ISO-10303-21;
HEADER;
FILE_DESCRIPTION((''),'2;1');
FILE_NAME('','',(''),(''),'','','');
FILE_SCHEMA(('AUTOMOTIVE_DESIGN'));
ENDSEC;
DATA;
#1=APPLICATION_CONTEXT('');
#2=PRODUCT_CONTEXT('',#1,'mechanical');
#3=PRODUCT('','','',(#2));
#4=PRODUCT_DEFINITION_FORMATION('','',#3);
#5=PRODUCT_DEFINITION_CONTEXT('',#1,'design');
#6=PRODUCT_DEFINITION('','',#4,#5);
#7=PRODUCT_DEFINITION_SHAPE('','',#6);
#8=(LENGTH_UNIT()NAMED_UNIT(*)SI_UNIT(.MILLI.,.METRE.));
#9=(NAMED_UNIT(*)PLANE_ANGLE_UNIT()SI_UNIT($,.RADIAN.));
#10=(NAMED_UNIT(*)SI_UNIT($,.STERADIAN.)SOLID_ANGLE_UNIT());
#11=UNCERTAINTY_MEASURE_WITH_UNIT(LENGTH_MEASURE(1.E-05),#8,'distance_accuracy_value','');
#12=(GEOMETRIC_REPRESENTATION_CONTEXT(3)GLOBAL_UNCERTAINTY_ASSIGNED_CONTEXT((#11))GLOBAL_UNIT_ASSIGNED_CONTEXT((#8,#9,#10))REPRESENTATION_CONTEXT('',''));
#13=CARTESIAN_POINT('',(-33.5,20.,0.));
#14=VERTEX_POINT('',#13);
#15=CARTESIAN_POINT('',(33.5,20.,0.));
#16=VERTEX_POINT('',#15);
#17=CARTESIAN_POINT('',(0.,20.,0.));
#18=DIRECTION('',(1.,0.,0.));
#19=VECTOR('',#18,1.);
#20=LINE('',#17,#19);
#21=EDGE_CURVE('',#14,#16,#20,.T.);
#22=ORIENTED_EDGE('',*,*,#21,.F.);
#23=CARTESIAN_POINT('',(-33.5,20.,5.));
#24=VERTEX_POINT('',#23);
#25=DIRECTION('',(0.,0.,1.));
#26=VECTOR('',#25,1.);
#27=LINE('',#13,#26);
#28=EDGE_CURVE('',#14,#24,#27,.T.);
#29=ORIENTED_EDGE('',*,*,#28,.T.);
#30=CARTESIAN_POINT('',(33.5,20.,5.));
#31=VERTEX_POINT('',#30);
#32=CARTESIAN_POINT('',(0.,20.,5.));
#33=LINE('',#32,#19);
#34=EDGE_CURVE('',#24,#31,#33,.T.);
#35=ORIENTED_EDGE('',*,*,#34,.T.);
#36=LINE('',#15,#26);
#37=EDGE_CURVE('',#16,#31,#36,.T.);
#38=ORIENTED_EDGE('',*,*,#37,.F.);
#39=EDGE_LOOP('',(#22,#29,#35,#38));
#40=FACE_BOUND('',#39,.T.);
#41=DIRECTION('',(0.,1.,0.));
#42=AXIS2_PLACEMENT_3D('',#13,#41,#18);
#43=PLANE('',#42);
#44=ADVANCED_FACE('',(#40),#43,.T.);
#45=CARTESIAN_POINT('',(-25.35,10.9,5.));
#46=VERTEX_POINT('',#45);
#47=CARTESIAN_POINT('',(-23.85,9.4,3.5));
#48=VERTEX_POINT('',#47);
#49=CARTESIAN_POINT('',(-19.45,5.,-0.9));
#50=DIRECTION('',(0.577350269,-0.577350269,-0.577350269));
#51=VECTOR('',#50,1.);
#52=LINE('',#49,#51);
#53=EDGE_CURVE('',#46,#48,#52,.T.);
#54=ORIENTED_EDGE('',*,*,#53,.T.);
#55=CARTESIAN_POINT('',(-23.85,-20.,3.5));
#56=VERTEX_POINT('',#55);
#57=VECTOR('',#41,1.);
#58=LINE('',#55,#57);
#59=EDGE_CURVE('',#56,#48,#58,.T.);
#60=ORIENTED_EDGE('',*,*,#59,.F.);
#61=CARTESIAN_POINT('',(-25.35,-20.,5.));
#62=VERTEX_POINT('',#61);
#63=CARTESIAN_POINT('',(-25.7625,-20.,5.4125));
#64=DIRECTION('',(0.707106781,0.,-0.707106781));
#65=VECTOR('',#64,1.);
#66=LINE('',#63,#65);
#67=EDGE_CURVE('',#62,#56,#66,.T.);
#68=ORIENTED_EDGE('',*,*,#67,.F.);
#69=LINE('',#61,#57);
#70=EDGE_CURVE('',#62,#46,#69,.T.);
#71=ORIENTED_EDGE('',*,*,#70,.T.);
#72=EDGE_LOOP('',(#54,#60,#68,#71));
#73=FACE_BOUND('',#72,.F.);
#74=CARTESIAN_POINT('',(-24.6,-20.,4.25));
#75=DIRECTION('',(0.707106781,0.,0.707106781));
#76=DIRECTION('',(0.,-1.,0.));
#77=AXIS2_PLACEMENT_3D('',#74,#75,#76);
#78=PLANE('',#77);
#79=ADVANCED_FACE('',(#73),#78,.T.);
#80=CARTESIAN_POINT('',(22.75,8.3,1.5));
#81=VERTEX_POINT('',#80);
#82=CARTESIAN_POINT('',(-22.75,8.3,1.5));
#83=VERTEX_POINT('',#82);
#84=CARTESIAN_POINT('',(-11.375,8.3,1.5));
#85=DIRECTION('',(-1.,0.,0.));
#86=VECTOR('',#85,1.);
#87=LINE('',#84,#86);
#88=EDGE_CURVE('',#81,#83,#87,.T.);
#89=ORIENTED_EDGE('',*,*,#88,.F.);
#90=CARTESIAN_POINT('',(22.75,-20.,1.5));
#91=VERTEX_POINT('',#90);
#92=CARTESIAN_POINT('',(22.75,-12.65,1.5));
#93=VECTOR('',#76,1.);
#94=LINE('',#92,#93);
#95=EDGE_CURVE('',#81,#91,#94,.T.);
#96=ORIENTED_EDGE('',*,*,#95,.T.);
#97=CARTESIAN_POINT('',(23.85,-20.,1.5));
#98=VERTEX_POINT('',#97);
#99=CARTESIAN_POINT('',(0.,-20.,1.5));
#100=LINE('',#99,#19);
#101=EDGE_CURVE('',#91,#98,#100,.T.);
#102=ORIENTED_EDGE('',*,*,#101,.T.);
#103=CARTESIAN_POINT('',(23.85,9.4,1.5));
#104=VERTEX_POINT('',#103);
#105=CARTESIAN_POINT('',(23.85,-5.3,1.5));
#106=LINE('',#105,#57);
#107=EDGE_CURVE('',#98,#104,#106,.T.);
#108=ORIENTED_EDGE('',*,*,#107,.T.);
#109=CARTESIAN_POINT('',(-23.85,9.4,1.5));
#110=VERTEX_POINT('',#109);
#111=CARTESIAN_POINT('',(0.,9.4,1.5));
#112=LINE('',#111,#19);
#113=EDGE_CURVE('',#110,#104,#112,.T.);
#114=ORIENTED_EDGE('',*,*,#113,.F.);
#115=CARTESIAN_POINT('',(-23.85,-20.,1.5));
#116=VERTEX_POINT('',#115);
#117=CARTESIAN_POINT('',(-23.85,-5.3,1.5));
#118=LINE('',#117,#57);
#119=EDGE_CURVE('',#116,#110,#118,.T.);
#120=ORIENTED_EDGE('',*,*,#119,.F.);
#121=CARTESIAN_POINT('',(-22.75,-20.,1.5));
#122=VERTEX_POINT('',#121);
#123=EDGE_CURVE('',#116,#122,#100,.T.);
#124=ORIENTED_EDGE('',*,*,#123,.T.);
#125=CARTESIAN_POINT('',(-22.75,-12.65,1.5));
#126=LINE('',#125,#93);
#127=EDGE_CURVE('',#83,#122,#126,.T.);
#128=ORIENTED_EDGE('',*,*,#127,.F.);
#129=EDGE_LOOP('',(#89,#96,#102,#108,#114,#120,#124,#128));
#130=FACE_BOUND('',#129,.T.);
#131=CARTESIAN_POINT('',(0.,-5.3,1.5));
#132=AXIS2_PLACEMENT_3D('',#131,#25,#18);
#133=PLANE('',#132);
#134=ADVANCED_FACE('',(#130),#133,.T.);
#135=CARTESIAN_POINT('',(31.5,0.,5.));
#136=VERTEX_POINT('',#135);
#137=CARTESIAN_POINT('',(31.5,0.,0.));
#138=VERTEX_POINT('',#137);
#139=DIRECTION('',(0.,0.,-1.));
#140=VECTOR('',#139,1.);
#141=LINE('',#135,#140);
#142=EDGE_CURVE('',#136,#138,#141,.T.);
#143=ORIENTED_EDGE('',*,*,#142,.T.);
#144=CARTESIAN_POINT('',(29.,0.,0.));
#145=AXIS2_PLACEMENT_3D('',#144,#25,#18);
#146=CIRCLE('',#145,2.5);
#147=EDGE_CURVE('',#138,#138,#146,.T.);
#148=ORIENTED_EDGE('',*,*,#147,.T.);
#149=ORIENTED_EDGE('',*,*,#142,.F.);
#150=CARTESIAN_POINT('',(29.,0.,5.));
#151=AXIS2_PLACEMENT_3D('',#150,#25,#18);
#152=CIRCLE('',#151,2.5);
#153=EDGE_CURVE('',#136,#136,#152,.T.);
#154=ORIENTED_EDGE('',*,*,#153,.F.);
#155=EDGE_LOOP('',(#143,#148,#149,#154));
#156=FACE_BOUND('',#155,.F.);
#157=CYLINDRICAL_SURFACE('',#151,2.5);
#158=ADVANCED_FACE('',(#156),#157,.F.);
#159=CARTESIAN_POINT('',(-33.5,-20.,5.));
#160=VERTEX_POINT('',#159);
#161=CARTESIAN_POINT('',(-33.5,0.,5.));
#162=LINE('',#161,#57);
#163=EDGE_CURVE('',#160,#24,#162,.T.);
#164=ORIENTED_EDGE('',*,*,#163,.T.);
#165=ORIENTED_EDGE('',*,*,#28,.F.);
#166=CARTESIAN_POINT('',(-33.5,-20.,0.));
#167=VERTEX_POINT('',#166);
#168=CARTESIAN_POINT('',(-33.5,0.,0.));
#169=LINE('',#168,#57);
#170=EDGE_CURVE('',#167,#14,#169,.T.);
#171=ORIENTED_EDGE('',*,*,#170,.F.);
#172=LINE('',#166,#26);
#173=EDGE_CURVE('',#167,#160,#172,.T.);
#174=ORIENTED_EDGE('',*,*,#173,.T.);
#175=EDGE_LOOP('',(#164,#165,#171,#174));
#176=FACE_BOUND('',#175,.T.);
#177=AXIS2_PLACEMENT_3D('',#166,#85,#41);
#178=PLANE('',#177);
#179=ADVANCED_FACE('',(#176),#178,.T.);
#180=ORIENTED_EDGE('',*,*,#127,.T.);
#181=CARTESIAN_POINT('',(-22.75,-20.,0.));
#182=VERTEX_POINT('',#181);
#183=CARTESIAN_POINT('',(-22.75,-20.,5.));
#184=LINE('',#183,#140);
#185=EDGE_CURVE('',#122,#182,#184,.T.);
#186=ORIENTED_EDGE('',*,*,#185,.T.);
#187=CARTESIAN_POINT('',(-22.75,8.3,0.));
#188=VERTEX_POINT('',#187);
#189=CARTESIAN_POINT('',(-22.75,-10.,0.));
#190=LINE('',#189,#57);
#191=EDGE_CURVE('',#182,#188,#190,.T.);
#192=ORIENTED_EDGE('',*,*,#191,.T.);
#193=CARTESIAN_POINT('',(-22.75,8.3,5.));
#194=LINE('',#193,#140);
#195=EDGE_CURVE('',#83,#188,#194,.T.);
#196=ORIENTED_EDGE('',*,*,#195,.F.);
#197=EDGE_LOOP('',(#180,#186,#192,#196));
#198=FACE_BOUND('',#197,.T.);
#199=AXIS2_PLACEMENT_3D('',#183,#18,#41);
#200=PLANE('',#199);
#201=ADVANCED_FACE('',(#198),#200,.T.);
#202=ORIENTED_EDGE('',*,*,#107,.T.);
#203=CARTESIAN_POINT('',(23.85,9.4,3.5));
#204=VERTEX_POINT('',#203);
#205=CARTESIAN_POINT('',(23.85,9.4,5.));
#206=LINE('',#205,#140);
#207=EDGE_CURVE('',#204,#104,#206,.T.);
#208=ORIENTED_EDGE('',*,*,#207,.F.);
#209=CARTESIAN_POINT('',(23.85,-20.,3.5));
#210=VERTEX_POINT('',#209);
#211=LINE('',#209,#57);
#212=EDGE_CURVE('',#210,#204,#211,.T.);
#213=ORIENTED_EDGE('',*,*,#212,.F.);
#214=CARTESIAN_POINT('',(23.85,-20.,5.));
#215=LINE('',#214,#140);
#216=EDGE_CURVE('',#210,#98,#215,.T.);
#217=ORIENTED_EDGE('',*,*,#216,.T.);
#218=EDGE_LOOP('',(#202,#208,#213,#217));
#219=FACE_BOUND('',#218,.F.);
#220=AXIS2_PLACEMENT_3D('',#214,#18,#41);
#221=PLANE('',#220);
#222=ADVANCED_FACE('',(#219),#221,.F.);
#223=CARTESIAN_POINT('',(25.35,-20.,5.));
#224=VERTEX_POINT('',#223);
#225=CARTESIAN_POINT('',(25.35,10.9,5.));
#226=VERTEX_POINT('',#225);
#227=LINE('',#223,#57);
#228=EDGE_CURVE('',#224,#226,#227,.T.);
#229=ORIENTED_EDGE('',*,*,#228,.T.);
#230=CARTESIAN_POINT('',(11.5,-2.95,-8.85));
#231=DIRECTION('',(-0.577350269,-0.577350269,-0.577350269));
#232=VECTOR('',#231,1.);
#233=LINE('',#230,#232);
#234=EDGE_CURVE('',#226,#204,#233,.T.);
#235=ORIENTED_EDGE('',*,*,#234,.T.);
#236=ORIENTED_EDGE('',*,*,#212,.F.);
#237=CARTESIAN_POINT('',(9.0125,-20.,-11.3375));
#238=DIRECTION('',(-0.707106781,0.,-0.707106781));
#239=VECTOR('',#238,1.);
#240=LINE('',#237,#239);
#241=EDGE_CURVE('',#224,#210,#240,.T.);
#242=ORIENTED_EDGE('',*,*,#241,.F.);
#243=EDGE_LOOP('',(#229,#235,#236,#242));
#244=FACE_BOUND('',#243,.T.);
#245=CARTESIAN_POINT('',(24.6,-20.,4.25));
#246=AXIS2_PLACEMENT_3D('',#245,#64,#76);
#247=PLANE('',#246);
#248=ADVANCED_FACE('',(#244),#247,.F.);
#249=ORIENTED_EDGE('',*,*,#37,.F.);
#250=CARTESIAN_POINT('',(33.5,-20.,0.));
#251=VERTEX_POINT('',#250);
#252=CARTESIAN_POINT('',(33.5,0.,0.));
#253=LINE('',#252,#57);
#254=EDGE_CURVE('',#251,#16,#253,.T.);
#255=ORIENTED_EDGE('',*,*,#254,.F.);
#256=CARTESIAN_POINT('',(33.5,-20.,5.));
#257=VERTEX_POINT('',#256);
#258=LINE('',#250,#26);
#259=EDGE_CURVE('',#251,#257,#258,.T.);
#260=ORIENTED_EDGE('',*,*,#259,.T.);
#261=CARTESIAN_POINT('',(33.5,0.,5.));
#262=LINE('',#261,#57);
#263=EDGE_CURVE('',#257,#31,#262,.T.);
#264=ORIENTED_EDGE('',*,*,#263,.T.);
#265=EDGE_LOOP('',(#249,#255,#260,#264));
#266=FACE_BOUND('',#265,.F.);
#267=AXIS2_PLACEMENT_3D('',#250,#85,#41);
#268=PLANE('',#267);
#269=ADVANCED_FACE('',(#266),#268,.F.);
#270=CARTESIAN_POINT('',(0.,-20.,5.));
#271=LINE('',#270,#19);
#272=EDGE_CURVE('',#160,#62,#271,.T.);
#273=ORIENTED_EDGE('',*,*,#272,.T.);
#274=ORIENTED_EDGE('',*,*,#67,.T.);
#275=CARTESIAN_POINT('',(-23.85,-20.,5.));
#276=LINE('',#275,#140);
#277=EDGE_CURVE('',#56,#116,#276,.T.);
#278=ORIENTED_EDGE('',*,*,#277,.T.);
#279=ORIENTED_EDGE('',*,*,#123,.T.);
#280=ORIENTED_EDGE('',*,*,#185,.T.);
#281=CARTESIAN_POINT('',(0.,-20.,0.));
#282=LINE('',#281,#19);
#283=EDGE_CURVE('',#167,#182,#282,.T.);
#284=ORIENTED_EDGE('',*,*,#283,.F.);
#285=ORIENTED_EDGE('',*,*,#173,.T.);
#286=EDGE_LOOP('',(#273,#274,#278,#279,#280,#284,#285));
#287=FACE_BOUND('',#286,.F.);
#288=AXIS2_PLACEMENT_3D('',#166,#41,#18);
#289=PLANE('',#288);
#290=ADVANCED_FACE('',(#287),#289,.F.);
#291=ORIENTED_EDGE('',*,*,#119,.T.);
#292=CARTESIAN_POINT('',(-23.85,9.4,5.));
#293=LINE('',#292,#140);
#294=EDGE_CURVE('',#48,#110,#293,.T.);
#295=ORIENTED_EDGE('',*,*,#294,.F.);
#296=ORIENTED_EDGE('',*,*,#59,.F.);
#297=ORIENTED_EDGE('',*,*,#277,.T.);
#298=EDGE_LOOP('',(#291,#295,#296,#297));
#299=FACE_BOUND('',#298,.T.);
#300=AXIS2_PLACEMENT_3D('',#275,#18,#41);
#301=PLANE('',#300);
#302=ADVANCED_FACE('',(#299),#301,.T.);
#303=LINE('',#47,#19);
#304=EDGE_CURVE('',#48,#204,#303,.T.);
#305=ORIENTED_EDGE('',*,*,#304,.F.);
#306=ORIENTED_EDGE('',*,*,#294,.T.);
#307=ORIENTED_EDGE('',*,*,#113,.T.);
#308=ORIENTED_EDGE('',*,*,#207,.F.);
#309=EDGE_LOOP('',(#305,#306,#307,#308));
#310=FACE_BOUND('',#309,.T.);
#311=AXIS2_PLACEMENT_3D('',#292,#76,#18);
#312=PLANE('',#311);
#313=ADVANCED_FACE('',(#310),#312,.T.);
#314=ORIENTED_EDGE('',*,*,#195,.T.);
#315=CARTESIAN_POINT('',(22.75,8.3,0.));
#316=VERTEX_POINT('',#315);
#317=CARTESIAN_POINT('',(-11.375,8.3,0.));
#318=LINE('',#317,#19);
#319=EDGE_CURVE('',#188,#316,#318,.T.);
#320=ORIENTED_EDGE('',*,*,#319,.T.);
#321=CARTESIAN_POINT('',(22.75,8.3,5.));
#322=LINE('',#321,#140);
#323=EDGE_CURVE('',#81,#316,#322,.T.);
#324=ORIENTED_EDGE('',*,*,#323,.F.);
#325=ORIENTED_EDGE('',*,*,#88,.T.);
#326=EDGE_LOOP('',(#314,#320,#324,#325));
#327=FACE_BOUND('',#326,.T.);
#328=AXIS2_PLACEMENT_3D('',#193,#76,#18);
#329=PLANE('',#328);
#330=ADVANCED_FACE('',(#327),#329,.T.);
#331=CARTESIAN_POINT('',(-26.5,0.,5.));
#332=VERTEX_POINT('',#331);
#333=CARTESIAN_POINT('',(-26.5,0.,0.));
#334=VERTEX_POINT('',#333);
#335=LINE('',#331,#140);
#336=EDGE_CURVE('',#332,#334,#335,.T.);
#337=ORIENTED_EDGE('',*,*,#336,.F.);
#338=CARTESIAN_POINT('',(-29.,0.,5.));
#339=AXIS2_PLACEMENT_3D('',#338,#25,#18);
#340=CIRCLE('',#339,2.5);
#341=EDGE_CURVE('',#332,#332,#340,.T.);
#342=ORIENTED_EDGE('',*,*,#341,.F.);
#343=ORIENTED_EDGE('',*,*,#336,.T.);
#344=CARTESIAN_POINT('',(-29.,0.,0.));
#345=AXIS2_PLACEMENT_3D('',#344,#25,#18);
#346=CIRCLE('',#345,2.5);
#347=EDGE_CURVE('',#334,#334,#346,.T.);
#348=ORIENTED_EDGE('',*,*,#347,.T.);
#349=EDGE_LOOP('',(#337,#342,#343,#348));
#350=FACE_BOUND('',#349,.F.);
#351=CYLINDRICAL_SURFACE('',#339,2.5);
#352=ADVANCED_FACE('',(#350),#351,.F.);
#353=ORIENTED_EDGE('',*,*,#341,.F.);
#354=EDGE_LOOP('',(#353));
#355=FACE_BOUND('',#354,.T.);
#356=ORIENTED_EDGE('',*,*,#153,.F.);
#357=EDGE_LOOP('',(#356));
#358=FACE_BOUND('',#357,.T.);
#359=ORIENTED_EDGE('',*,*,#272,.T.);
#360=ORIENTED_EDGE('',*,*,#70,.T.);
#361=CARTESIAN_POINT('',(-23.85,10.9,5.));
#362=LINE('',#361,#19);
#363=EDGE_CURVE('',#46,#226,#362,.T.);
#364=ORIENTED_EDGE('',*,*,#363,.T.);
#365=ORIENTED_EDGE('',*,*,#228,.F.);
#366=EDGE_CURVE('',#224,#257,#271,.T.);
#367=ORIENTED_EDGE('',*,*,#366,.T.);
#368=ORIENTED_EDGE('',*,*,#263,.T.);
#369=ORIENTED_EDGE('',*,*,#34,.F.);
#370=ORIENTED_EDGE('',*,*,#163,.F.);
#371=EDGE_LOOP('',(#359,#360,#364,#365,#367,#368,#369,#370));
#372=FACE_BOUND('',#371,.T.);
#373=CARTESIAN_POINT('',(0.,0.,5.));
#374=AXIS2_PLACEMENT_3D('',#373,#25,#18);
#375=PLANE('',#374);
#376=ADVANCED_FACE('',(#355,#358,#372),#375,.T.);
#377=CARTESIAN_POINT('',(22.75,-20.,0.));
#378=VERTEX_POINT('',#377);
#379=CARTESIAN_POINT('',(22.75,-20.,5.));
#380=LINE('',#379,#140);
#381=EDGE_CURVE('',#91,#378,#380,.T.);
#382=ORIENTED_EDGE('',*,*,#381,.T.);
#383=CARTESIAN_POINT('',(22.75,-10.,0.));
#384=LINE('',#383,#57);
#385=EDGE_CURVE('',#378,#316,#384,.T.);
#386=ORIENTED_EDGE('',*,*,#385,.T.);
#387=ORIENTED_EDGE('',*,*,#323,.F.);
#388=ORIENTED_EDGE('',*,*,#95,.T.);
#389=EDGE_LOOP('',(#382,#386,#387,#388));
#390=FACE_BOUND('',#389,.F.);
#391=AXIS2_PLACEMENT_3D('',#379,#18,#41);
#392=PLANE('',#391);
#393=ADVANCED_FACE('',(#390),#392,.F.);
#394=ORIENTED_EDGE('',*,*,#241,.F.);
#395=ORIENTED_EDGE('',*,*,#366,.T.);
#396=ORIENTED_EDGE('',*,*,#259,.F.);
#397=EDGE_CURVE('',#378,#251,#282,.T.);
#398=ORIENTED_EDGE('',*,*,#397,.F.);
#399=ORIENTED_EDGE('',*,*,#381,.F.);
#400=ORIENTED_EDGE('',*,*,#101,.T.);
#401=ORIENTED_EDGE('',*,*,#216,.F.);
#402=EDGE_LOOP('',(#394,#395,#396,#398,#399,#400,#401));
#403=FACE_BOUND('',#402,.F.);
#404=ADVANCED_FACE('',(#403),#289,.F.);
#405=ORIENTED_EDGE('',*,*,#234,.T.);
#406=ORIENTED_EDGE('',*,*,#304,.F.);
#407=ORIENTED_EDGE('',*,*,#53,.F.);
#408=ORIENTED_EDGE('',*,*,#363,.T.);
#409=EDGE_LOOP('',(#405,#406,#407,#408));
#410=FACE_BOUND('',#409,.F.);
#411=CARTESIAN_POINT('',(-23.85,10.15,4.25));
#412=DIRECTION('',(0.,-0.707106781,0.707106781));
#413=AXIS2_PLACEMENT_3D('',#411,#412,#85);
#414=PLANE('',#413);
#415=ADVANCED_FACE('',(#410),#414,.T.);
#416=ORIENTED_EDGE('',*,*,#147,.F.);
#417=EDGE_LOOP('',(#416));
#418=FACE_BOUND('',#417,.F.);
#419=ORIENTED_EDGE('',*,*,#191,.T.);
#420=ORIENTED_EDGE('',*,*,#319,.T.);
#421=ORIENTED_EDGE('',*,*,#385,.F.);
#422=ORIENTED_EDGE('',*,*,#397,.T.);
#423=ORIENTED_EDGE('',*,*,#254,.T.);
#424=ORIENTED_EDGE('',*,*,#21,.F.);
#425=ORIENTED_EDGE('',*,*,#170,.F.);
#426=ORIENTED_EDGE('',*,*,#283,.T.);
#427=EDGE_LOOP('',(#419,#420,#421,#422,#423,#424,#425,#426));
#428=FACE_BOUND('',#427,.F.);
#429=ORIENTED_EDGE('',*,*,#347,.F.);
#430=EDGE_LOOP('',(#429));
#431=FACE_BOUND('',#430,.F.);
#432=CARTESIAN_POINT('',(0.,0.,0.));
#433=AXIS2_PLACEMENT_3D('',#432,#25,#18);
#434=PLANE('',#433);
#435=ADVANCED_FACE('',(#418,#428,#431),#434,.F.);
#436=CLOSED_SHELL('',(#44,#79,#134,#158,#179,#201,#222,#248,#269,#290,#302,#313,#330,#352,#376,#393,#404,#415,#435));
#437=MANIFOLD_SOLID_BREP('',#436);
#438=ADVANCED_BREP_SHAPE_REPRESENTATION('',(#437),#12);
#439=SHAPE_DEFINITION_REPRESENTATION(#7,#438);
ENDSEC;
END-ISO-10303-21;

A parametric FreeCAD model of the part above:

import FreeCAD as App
import Part
import Sketcher

V = App.Vector


def edges_at(feature, points):
    """Names of the edges that pass closest to the given points."""
    edges = feature.Shape.Edges
    near = lambda p: min(range(len(edges)), key=lambda i: edges[i].distToShape(Part.Vertex(*p))[0])
    return sorted({f"Edge{near(p) + 1}" for p in points})

doc = App.newDocument("Part")
body = doc.addObject("PartDesign::Body", "Body")

# Sketch on XY plane
sketch1 = body.newObject("Sketcher::SketchObject", "Sketch")
sketch1.AttachmentSupport = (doc.getObject("XY_Plane"), [""])
sketch1.MapMode = "FlatFace"
sketch1.addGeometry([
    Part.LineSegment(V(-34, 20, 0), V(-34, -20, 0)),
    Part.LineSegment(V(-34, -20, 0), V(34, -20, 0)),
    Part.LineSegment(V(34, -20, 0), V(34, 20, 0)),
    Part.LineSegment(V(34, 20, 0), V(-34, 20, 0)),
], False)
sketch1.addConstraint([
    Sketcher.Constraint("Coincident", 0, 2, 1, 1),
    Sketcher.Constraint("Coincident", 1, 2, 2, 1),
    Sketcher.Constraint("Coincident", 2, 2, 3, 1),
    Sketcher.Constraint("Coincident", 3, 2, 0, 1),
    Sketcher.Constraint("Vertical", 0),
    Sketcher.Constraint("Horizontal", 1),
    Sketcher.Constraint("Vertical", 2),
    Sketcher.Constraint("Horizontal", 3),
    Sketcher.Constraint("Symmetric", 0, 2, 2, 2, -1, 1),
    Sketcher.Constraint("DistanceX", 1, 1, 1, 2, 67.0),
    Sketcher.Constraint("DistanceY", 0, 2, 0, 1, 40.0),
])
pad1 = body.newObject("PartDesign::Pad", "Pad")
pad1.Profile = sketch1
pad1.Length = 5

# Sketch on XY plane
sketch2 = body.newObject("Sketcher::SketchObject", "Sketch001")
sketch2.AttachmentSupport = (doc.getObject("XY_Plane"), [""])
sketch2.MapMode = "FlatFace"
sketch2.AttachmentOffset = App.Placement(V(0, 0, 5), App.Rotation())
sketch2.addGeometry([
    Part.LineSegment(V(-23, 8, 0), V(-23, -20, 0)),
    Part.LineSegment(V(-23, -20, 0), V(23, -20, 0)),
    Part.LineSegment(V(23, -20, 0), V(23, 8, 0)),
    Part.LineSegment(V(23, 8, 0), V(-23, 8, 0)),
], False)
sketch2.addConstraint([
    Sketcher.Constraint("Coincident", 0, 2, 1, 1),
    Sketcher.Constraint("Coincident", 1, 2, 2, 1),
    Sketcher.Constraint("Coincident", 2, 2, 3, 1),
    Sketcher.Constraint("Coincident", 3, 2, 0, 1),
    Sketcher.Constraint("Vertical", 0),
    Sketcher.Constraint("Horizontal", 1),
    Sketcher.Constraint("Vertical", 2),
    Sketcher.Constraint("Horizontal", 3),
    Sketcher.Constraint("DistanceX", 1, 1, 1, 2, 45.5),
    Sketcher.Constraint("DistanceY", 0, 2, 0, 1, 28.3),
    Sketcher.Constraint("DistanceY", 0, 2, -1, 1, 20.0),
    Sketcher.Constraint("DistanceX", 0, 2, -1, 1, 22.75),
])
pocket1 = body.newObject("PartDesign::Pocket", "Pocket")
pocket1.Profile = sketch2
pocket1.Type = "ThroughAll"

# Sketch on XY plane
sketch3 = body.newObject("Sketcher::SketchObject", "Sketch002")
sketch3.AttachmentSupport = (doc.getObject("XY_Plane"), [""])
sketch3.MapMode = "FlatFace"
sketch3.AttachmentOffset = App.Placement(V(0, 0, 5), App.Rotation())
sketch3.addGeometry([
    Part.LineSegment(V(-24, 9, 0), V(-24, -20, 0)),
    Part.LineSegment(V(-24, -20, 0), V(24, -20, 0)),
    Part.LineSegment(V(24, -20, 0), V(24, 9, 0)),
    Part.LineSegment(V(24, 9, 0), V(-24, 9, 0)),
], False)
sketch3.addConstraint([
    Sketcher.Constraint("Coincident", 0, 2, 1, 1),
    Sketcher.Constraint("Coincident", 1, 2, 2, 1),
    Sketcher.Constraint("Coincident", 2, 2, 3, 1),
    Sketcher.Constraint("Coincident", 3, 2, 0, 1),
    Sketcher.Constraint("Vertical", 0),
    Sketcher.Constraint("Horizontal", 1),
    Sketcher.Constraint("Vertical", 2),
    Sketcher.Constraint("Horizontal", 3),
    Sketcher.Constraint("DistanceX", 1, 1, 1, 2, 47.7),
    Sketcher.Constraint("DistanceY", 0, 2, 0, 1, 29.4),
    Sketcher.Constraint("DistanceY", 0, 2, -1, 1, 20.0),
    Sketcher.Constraint("DistanceX", 0, 2, -1, 1, 23.85),
])
pocket2 = body.newObject("PartDesign::Pocket", "Pocket001")
pocket2.Profile = sketch3
pocket2.Length = 3.5

# Sketch on XY plane
sketch4 = body.newObject("Sketcher::SketchObject", "Sketch003")
sketch4.AttachmentSupport = (doc.getObject("XY_Plane"), [""])
sketch4.MapMode = "FlatFace"
sketch4.AttachmentOffset = App.Placement(V(0, 0, 5), App.Rotation())
sketch4.addGeometry([
    Part.Circle(V(29, 0, 0), V(0, 0, 1), 2.5),
    Part.Circle(V(-29, 0, 0), V(0, 0, 1), 2.5),
], False)
sketch4.addConstraint([
    Sketcher.Constraint("Equal", 0, 1),
    Sketcher.Constraint("Symmetric", 0, 3, 1, 3, -1, 1),
    Sketcher.Constraint("PointOnObject", 0, 3, -1),
    Sketcher.Constraint("Diameter", 0, 5.0),
    Sketcher.Constraint("DistanceX", -1, 1, 0, 3, 29.0),
])
pocket3 = body.newObject("PartDesign::Pocket", "Pocket002")
pocket3.Profile = sketch4
pocket3.Type = "ThroughAll"
doc.recompute()

chamfer = body.newObject("PartDesign::Chamfer", "Chamfer")
chamfer.Base = (pocket3, edges_at(pocket3, [(0, 9.4, 5), (-23.85, -5.3, 5), (23.85, -5.3, 5)]))
chamfer.Size = 1.5

doc.recompute()
